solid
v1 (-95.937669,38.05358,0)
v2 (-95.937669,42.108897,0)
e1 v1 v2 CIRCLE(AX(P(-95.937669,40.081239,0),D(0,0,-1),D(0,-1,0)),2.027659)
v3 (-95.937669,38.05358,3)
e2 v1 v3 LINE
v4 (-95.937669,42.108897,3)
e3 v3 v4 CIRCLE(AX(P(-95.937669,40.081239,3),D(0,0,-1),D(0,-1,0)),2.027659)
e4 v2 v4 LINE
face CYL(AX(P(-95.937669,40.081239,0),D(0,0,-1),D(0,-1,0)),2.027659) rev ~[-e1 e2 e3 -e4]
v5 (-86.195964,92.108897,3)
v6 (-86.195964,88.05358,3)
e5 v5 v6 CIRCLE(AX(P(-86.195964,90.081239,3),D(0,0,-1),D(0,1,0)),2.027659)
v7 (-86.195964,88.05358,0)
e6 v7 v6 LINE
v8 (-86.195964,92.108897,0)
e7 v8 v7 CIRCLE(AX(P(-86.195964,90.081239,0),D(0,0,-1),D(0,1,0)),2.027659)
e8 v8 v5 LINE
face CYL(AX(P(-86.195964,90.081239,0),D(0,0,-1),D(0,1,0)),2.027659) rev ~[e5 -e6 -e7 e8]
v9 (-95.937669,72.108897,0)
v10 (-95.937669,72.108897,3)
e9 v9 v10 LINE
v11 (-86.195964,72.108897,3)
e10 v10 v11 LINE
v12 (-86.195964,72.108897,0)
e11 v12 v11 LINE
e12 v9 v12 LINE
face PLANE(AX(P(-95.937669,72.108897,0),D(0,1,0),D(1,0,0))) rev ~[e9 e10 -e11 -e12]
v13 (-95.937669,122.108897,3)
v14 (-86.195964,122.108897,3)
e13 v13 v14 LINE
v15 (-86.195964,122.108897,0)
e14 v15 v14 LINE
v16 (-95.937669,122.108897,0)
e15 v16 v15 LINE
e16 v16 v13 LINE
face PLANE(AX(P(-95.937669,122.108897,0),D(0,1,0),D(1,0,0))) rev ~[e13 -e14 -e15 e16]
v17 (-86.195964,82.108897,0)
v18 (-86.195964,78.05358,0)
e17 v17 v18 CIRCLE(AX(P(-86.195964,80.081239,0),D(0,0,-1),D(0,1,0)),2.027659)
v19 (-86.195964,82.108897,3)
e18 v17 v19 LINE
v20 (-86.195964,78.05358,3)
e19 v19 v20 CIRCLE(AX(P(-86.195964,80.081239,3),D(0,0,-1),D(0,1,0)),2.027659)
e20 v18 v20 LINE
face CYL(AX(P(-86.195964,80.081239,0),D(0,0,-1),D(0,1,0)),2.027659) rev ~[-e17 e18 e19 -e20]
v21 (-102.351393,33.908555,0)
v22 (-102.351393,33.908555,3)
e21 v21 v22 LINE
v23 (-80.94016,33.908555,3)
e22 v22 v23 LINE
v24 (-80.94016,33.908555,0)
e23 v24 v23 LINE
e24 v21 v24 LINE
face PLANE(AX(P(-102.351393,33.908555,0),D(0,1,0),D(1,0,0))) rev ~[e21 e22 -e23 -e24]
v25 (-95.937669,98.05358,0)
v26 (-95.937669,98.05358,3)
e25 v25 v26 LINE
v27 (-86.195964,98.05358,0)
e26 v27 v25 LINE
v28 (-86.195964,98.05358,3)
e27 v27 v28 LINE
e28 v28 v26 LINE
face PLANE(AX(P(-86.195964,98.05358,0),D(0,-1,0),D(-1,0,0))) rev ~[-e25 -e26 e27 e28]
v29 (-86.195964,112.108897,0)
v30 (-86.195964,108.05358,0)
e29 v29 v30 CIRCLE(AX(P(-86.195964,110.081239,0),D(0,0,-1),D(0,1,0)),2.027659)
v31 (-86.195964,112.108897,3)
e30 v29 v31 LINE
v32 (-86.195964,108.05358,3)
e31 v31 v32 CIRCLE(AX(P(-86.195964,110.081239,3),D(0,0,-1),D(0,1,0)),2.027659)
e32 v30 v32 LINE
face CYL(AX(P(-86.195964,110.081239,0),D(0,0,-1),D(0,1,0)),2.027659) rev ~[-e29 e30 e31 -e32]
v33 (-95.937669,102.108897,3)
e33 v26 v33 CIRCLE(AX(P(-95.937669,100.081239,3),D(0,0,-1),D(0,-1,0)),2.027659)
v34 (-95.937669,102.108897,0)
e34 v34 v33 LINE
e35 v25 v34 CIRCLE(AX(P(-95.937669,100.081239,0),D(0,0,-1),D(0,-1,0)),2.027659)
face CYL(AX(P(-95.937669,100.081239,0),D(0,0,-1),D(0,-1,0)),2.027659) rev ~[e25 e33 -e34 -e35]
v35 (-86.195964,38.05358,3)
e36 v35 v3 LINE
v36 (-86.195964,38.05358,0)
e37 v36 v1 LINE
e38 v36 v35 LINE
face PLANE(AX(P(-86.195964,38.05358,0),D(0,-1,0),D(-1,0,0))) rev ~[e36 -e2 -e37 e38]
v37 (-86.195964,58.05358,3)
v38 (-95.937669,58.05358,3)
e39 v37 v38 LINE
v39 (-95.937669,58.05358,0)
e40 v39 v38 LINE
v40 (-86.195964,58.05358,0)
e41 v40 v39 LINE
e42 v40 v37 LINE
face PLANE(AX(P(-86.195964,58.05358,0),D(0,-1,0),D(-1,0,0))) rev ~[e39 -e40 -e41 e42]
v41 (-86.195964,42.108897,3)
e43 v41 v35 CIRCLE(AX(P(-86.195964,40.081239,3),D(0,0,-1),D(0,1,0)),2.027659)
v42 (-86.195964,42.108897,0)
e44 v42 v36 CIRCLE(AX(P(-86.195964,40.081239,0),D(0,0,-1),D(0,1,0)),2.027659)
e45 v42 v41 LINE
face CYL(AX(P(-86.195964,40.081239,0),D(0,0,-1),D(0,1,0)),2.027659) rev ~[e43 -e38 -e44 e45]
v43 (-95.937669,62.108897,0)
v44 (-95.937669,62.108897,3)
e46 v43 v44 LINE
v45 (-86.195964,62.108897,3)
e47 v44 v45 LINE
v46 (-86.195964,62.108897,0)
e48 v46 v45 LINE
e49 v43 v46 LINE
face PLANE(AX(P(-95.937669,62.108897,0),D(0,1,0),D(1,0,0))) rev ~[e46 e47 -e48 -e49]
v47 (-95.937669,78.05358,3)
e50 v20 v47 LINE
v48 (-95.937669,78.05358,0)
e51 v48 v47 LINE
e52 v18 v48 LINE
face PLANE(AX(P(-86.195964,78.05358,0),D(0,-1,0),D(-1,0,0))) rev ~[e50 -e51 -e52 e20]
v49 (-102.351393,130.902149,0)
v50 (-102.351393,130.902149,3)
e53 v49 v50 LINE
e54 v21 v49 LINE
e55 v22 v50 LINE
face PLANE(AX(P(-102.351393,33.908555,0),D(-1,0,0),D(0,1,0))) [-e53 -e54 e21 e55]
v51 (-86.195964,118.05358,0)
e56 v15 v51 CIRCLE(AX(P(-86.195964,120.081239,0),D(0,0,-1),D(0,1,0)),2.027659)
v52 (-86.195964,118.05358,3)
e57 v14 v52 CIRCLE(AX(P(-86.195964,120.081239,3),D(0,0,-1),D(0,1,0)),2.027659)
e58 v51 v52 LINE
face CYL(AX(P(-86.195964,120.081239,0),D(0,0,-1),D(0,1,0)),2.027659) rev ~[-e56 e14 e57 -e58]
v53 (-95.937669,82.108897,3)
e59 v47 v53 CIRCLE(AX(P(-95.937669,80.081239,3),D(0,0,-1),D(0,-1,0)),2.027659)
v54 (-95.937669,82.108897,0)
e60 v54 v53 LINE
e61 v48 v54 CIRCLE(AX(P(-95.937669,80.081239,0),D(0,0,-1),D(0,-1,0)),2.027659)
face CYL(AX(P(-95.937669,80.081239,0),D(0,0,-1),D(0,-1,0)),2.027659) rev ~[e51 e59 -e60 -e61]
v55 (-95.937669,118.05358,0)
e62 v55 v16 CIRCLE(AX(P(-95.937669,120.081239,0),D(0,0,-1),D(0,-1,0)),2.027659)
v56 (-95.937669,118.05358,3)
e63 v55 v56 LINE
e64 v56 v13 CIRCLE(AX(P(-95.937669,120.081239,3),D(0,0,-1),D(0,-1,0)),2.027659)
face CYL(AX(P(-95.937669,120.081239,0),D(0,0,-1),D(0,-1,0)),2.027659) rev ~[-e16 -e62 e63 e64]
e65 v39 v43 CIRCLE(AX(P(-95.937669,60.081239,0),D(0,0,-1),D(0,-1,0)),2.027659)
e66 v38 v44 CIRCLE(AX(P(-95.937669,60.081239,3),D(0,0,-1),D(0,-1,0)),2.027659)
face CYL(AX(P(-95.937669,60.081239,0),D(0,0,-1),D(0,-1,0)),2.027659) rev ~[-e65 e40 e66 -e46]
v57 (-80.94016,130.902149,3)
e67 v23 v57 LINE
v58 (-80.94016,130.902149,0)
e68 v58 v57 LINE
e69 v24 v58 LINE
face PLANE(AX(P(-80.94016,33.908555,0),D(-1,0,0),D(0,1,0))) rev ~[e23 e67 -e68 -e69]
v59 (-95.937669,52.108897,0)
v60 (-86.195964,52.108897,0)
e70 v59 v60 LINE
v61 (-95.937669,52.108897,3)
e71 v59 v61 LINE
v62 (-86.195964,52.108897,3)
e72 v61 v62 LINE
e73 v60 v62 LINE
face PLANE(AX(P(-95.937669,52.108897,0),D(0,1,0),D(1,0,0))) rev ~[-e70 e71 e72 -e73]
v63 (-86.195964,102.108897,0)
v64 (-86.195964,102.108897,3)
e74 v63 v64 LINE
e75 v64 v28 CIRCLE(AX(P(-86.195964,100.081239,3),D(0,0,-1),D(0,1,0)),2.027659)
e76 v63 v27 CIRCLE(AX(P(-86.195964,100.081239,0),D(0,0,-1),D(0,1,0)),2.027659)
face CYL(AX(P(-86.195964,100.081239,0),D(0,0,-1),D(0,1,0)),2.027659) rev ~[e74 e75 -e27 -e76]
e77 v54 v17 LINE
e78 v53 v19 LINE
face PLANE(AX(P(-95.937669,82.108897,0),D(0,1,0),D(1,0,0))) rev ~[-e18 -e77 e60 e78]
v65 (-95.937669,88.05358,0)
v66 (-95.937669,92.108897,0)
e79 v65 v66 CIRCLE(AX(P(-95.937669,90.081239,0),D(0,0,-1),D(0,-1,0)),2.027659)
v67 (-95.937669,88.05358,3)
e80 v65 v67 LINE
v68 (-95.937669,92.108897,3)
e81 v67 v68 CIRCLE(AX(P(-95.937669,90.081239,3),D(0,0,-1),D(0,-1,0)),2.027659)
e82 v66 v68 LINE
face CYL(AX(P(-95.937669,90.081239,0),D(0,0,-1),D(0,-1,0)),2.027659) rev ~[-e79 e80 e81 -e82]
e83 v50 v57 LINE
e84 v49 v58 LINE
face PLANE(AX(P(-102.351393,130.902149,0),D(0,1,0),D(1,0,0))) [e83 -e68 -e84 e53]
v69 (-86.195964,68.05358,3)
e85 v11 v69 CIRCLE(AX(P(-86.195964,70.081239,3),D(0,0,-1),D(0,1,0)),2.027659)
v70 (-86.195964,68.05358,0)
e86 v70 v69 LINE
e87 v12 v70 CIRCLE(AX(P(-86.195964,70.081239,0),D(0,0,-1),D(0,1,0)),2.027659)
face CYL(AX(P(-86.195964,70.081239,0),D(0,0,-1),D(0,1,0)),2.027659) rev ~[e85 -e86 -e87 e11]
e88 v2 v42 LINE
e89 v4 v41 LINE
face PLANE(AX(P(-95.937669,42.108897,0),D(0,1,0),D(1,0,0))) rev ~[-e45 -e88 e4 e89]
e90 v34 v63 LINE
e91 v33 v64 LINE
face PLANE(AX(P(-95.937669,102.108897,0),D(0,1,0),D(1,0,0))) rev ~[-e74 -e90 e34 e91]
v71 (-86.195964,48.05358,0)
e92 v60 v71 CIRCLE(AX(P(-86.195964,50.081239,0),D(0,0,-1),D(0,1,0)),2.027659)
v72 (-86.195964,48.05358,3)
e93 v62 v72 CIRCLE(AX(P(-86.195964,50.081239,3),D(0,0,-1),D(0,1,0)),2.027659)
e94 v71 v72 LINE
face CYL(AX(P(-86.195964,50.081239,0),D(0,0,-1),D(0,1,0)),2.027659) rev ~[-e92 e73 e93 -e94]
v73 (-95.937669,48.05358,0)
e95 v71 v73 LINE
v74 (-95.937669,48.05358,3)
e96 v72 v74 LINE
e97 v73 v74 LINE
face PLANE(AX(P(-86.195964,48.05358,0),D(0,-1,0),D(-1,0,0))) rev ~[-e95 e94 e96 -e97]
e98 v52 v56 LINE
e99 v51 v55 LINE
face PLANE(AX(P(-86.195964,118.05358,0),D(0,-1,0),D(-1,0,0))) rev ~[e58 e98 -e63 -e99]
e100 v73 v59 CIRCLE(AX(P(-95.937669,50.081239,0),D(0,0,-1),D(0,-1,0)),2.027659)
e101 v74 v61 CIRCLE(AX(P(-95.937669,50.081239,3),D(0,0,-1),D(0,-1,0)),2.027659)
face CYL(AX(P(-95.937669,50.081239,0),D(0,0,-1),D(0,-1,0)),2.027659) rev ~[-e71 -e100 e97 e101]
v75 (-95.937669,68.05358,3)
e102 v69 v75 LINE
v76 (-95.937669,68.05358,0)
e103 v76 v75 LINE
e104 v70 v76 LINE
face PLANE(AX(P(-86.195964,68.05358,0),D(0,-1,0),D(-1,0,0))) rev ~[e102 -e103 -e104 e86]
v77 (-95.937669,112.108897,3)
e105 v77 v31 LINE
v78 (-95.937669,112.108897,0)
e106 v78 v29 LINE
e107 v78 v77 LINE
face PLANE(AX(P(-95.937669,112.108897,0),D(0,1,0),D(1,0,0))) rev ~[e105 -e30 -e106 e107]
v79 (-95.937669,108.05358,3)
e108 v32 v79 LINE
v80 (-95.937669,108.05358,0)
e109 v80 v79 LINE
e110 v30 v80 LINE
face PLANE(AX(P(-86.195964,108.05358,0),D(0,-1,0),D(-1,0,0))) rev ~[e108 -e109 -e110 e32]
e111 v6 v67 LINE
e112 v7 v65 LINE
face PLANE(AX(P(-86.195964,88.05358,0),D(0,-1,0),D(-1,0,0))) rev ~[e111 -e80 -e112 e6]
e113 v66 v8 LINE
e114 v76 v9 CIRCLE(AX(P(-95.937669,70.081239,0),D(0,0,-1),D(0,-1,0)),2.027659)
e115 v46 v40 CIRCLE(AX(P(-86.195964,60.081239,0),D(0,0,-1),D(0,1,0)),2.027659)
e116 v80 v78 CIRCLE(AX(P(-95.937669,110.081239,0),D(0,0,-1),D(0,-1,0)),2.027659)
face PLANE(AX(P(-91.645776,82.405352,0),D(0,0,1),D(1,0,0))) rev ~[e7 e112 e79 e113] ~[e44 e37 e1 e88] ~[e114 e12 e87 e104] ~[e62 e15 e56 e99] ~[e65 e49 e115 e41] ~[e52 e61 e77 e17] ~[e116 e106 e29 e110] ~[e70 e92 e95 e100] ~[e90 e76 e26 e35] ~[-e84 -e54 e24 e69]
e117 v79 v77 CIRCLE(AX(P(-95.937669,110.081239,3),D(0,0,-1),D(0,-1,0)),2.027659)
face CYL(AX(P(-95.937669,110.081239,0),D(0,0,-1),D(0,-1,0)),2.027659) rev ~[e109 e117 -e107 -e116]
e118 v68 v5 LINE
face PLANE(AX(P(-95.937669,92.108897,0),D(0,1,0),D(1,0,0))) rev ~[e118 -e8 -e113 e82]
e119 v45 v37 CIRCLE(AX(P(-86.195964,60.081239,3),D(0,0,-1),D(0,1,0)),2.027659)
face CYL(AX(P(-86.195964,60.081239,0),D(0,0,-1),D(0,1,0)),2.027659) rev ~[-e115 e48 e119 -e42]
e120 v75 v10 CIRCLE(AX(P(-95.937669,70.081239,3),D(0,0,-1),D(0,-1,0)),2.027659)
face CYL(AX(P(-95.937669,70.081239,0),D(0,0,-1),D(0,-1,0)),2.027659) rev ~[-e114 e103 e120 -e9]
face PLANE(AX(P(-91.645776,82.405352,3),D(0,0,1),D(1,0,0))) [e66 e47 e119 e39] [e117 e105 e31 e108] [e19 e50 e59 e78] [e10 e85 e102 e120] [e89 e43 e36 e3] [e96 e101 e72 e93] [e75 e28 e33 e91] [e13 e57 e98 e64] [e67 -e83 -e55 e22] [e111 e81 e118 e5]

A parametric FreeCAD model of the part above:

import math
import FreeCAD as App
import Part
import Sketcher


def add_polygon(sketch, points):
    """Adds a closed chain of lines whose ends are joined by coincident constraints."""
    first, n = sketch.GeometryCount, len(points)
    for a, b in zip(points, points[1:] + points[:1]):
        sketch.addGeometry(Part.LineSegment(App.Vector(*a, 0), App.Vector(*b, 0)), False)
    for i in range(n):
        sketch.addConstraint(Sketcher.Constraint("Coincident", first + i, 2, first + (i + 1) % n, 1))

doc = App.newDocument("Part")
body = doc.addObject("PartDesign::Body", "Body")

# Sketch on XY plane
sketch1 = doc.addObject("Sketcher::SketchObject", "Sketch")
body.addObject(sketch1)
sketch1.AttachmentSupport = (doc.XY_Plane, [""])
sketch1.MapMode = "FlatFace"
add_polygon(sketch1, [(-102.351393, 130.902149), (-102.351393, 33.908555), (-80.94016, 33.908555), (-80.94016, 130.902149)])  # lines 0-3
sketch1.addGeometry(Part.ArcOfCircle(Part.Circle(App.Vector(-86.195964, 50.081239, 0), App.Vector(0, 0, 1), 2.027659), math.radians(-90), math.radians(90)), False)  # 4
sketch1.addGeometry(Part.LineSegment(App.Vector(-86.195964, 48.05358, 0), App.Vector(-95.937669, 48.05358, 0)), False)  # 5
sketch1.addGeometry(Part.ArcOfCircle(Part.Circle(App.Vector(-95.937669, 50.081239, 0), App.Vector(0, 0, 1), 2.027659), math.radians(90), math.radians(270)), False)  # 6
sketch1.addGeometry(Part.LineSegment(App.Vector(-95.937669, 52.108897, 0), App.Vector(-86.195964, 52.108897, 0)), False)  # 7
sketch1.addGeometry(Part.ArcOfCircle(Part.Circle(App.Vector(-86.195964, 40.081239, 0), App.Vector(0, 0, 1), 2.027659), math.radians(-90), math.radians(90)), False)  # 8
sketch1.addGeometry(Part.LineSegment(App.Vector(-86.195964, 38.05358, 0), App.Vector(-95.937669, 38.05358, 0)), False)  # 9
sketch1.addGeometry(Part.ArcOfCircle(Part.Circle(App.Vector(-95.937669, 40.081239, 0), App.Vector(0, 0, 1), 2.027659), math.radians(90), math.radians(270)), False)  # 10
sketch1.addGeometry(Part.LineSegment(App.Vector(-95.937669, 42.108897, 0), App.Vector(-86.195964, 42.108897, 0)), False)  # 11
sketch1.addGeometry(Part.ArcOfCircle(Part.Circle(App.Vector(-86.195964, 60.081239, 0), App.Vector(0, 0, 1), 2.027659), math.radians(-90), math.radians(90)), False)  # 12
sketch1.addGeometry(Part.LineSegment(App.Vector(-86.195964, 58.05358, 0), App.Vector(-95.937669, 58.05358, 0)), False)  # 13
sketch1.addGeometry(Part.ArcOfCircle(Part.Circle(App.Vector(-95.937669, 60.081239, 0), App.Vector(0, 0, 1), 2.027659), math.radians(90), math.radians(270)), False)  # 14
sketch1.addGeometry(Part.LineSegment(App.Vector(-95.937669, 62.108897, 0), App.Vector(-86.195964, 62.108897, 0)), False)  # 15
sketch1.addGeometry(Part.ArcOfCircle(Part.Circle(App.Vector(-86.195964, 70.081239, 0), App.Vector(0, 0, 1), 2.027659), math.radians(-90), math.radians(90)), False)  # 16
sketch1.addGeometry(Part.LineSegment(App.Vector(-86.195964, 68.05358, 0), App.Vector(-95.937669, 68.05358, 0)), False)  # 17
sketch1.addGeometry(Part.ArcOfCircle(Part.Circle(App.Vector(-95.937669, 70.081239, 0), App.Vector(0, 0, 1), 2.027659), math.radians(90), math.radians(270)), False)  # 18
sketch1.addGeometry(Part.LineSegment(App.Vector(-95.937669, 72.108897, 0), App.Vector(-86.195964, 72.108897, 0)), False)  # 19
sketch1.addGeometry(Part.ArcOfCircle(Part.Circle(App.Vector(-86.195964, 80.081239, 0), App.Vector(0, 0, 1), 2.027659), math.radians(-90), math.radians(90)), False)  # 20
sketch1.addGeometry(Part.LineSegment(App.Vector(-86.195964, 78.05358, 0), App.Vector(-95.937669, 78.05358, 0)), False)  # 21
sketch1.addGeometry(Part.ArcOfCircle(Part.Circle(App.Vector(-95.937669, 80.081239, 0), App.Vector(0, 0, 1), 2.027659), math.radians(90), math.radians(270)), False)  # 22
sketch1.addGeometry(Part.LineSegment(App.Vector(-95.937669, 82.108897, 0), App.Vector(-86.195964, 82.108897, 0)), False)  # 23
sketch1.addGeometry(Part.ArcOfCircle(Part.Circle(App.Vector(-86.195964, 90.081239, 0), App.Vector(0, 0, 1), 2.027659), math.radians(-90), math.radians(90)), False)  # 24
sketch1.addGeometry(Part.LineSegment(App.Vector(-86.195964, 88.05358, 0), App.Vector(-95.937669, 88.05358, 0)), False)  # 25
sketch1.addGeometry(Part.ArcOfCircle(Part.Circle(App.Vector(-95.937669, 90.081239, 0), App.Vector(0, 0, 1), 2.027659), math.radians(90), math.radians(270)), False)  # 26
sketch1.addGeometry(Part.LineSegment(App.Vector(-95.937669, 92.108897, 0), App.Vector(-86.195964, 92.108897, 0)), False)  # 27
sketch1.addGeometry(Part.ArcOfCircle(Part.Circle(App.Vector(-86.195964, 100.081239, 0), App.Vector(0, 0, 1), 2.027659), math.radians(-90), math.radians(90)), False)  # 28
sketch1.addGeometry(Part.LineSegment(App.Vector(-86.195964, 98.05358, 0), App.Vector(-95.937669, 98.05358, 0)), False)  # 29
sketch1.addGeometry(Part.ArcOfCircle(Part.Circle(App.Vector(-95.937669, 100.081239, 0), App.Vector(0, 0, 1), 2.027659), math.radians(90), math.radians(270)), False)  # 30
sketch1.addGeometry(Part.LineSegment(App.Vector(-95.937669, 102.108897, 0), App.Vector(-86.195964, 102.108897, 0)), False)  # 31
sketch1.addGeometry(Part.ArcOfCircle(Part.Circle(App.Vector(-86.195964, 110.081239, 0), App.Vector(0, 0, 1), 2.027659), math.radians(-90), math.radians(90)), False)  # 32
sketch1.addGeometry(Part.LineSegment(App.Vector(-86.195964, 108.05358, 0), App.Vector(-95.937669, 108.05358, 0)), False)  # 33
sketch1.addGeometry(Part.ArcOfCircle(Part.Circle(App.Vector(-95.937669, 110.081239, 0), App.Vector(0, 0, 1), 2.027659), math.radians(90), math.radians(270)), False)  # 34
sketch1.addGeometry(Part.LineSegment(App.Vector(-95.937669, 112.108897, 0), App.Vector(-86.195964, 112.108897, 0)), False)  # 35
sketch1.addGeometry(Part.ArcOfCircle(Part.Circle(App.Vector(-86.195964, 120.081239, 0), App.Vector(0, 0, 1), 2.027659), math.radians(-90), math.radians(90)), False)  # 36
sketch1.addGeometry(Part.LineSegment(App.Vector(-86.195964, 118.05358, 0), App.Vector(-95.937669, 118.05358, 0)), False)  # 37
sketch1.addGeometry(Part.ArcOfCircle(Part.Circle(App.Vector(-95.937669, 120.081239, 0), App.Vector(0, 0, 1), 2.027659), math.radians(90), math.radians(270)), False)  # 38
sketch1.addGeometry(Part.LineSegment(App.Vector(-95.937669, 122.108897, 0), App.Vector(-86.195964, 122.108897, 0)), False)  # 39
sketch1.addConstraint([
    Sketcher.Constraint("Tangent", 4, 1, 5, 1),
    Sketcher.Constraint("Tangent", 5, 2, 6, 2),
    Sketcher.Constraint("Tangent", 6, 1, 7, 1),
    Sketcher.Constraint("Tangent", 7, 2, 4, 2),
    Sketcher.Constraint("Tangent", 8, 1, 9, 1),
    Sketcher.Constraint("Tangent", 9, 2, 10, 2),
    Sketcher.Constraint("Tangent", 10, 1, 11, 1),
    Sketcher.Constraint("Tangent", 11, 2, 8, 2),
    Sketcher.Constraint("Tangent", 12, 1, 13, 1),
    Sketcher.Constraint("Tangent", 13, 2, 14, 2),
    Sketcher.Constraint("Tangent", 14, 1, 15, 1),
    Sketcher.Constraint("Tangent", 15, 2, 12, 2),
    Sketcher.Constraint("Tangent", 16, 1, 17, 1),
    Sketcher.Constraint("Tangent", 17, 2, 18, 2),
    Sketcher.Constraint("Tangent", 18, 1, 19, 1),
    Sketcher.Constraint("Tangent", 19, 2, 16, 2),
    Sketcher.Constraint("Tangent", 20, 1, 21, 1),
    Sketcher.Constraint("Tangent", 21, 2, 22, 2),
    Sketcher.Constraint("Tangent", 22, 1, 23, 1),
    Sketcher.Constraint("Tangent", 23, 2, 20, 2),
    Sketcher.Constraint("Tangent", 24, 1, 25, 1),
    Sketcher.Constraint("Tangent", 25, 2, 26, 2),
    Sketcher.Constraint("Tangent", 26, 1, 27, 1),
    Sketcher.Constraint("Tangent", 27, 2, 24, 2),
    Sketcher.Constraint("Tangent", 28, 1, 29, 1),
    Sketcher.Constraint("Tangent", 29, 2, 30, 2),
    Sketcher.Constraint("Tangent", 30, 1, 31, 1),
    Sketcher.Constraint("Tangent", 31, 2, 28, 2),
    Sketcher.Constraint("Tangent", 32, 1, 33, 1),
    Sketcher.Constraint("Tangent", 33, 2, 34, 2),
    Sketcher.Constraint("Tangent", 34, 1, 35, 1),
    Sketcher.Constraint("Tangent", 35, 2, 32, 2),
    Sketcher.Constraint("Tangent", 36, 1, 37, 1),
    Sketcher.Constraint("Tangent", 37, 2, 38, 2),
    Sketcher.Constraint("Tangent", 38, 1, 39, 1),
    Sketcher.Constraint("Tangent", 39, 2, 36, 2),
    Sketcher.Constraint("Vertical", 0),
    Sketcher.Constraint("Horizontal", 1),
    Sketcher.Constraint("Vertical", 2),
    Sketcher.Constraint("Horizontal", 3),
    Sketcher.Constraint("Horizontal", 5),
    Sketcher.Constraint("Horizontal", 7),
    Sketcher.Constraint("Horizontal", 9),
    Sketcher.Constraint("Horizontal", 11),
    Sketcher.Constraint("Horizontal", 13),
    Sketcher.Constraint("Horizontal", 15),
    Sketcher.Constraint("Horizontal", 17),
    Sketcher.Constraint("Horizontal", 19),
    Sketcher.Constraint("Horizontal", 21),
    Sketcher.Constraint("Horizontal", 23),
    Sketcher.Constraint("Horizontal", 25),
    Sketcher.Constraint("Horizontal", 27),
    Sketcher.Constraint("Horizontal", 29),
    Sketcher.Constraint("Horizontal", 31),
    Sketcher.Constraint("Horizontal", 33),
    Sketcher.Constraint("Horizontal", 35),
    Sketcher.Constraint("Horizontal", 37),
    Sketcher.Constraint("Horizontal", 39),
    Sketcher.Constraint("Equal", 6, 8),
    Sketcher.Constraint("Equal", 10, 12),
    Sketcher.Constraint("Equal", 14, 16),
    Sketcher.Constraint("Equal", 18, 20),
    Sketcher.Constraint("Equal", 22, 24),
    Sketcher.Constraint("Equal", 26, 28),
    Sketcher.Constraint("Equal", 30, 32),
    Sketcher.Constraint("Equal", 34, 36),
    Sketcher.Constraint("Vertical", 4, 3, 8, 3),
    Sketcher.Constraint("Vertical", 6, 3, 10, 3),
    Sketcher.Constraint("Vertical", 8, 3, 12, 3),
    Sketcher.Constraint("Vertical", 10, 3, 14, 3),
    Sketcher.Constraint("Vertical", 12, 3, 16, 3),
    Sketcher.Constraint("Vertical", 14, 3, 18, 3),
    Sketcher.Constraint("Vertical", 16, 3, 20, 3),
    Sketcher.Constraint("Vertical", 18, 3, 22, 3),
    Sketcher.Constraint("Vertical", 20, 3, 24, 3),
    Sketcher.Constraint("Vertical", 22, 3, 26, 3),
    Sketcher.Constraint("Vertical", 24, 3, 28, 3),
    Sketcher.Constraint("Vertical", 26, 3, 30, 3),
    Sketcher.Constraint("Vertical", 28, 3, 32, 3),
    Sketcher.Constraint("Vertical", 30, 3, 34, 3),
    Sketcher.Constraint("Vertical", 32, 3, 36, 3),
    Sketcher.Constraint("Vertical", 34, 3, 38, 3),
    Sketcher.Constraint("DistanceY", 8, 3, 4, 3, 10.0),
    Sketcher.Constraint("DistanceY", 4, 3, 12, 3, 10.0),
    Sketcher.Constraint("DistanceY", 12, 3, 16, 3, 10.0),
    Sketcher.Constraint("DistanceY", 16, 3, 20, 3, 10.0),
    Sketcher.Constraint("DistanceY", 20, 3, 24, 3, 10.0),
    Sketcher.Constraint("DistanceY", 24, 3, 28, 3, 10.0),
    Sketcher.Constraint("DistanceY", 28, 3, 32, 3, 10.0),
    Sketcher.Constraint("DistanceY", 32, 3, 36, 3, 10.0),
    Sketcher.Constraint("Radius", 4, 2.027659),
    Sketcher.Constraint("DistanceX", 1, 1, 1, 2, 21.411234),
    Sketcher.Constraint("DistanceX", 5, 2, 5, 1, 9.741705),
    Sketcher.Constraint("DistanceY", 0, 2, 0, 1, 96.993594),
    Sketcher.Constraint("DistanceY", -1, 1, 4, 3, 50.081239),
    Sketcher.Constraint("DistanceX", 6, 3, -1, 1, 95.937669),
    Sketcher.Constraint("DistanceX", 1, 2, -1, 1, 80.94016),
    Sketcher.Constraint("DistanceY", -1, 1, 2, 2, 130.902149),
])
pad1 = doc.addObject("PartDesign::Pad", "Pad")
body.addObject(pad1)
pad1.Profile = sketch1
pad1.Length = 3

doc.recompute()
